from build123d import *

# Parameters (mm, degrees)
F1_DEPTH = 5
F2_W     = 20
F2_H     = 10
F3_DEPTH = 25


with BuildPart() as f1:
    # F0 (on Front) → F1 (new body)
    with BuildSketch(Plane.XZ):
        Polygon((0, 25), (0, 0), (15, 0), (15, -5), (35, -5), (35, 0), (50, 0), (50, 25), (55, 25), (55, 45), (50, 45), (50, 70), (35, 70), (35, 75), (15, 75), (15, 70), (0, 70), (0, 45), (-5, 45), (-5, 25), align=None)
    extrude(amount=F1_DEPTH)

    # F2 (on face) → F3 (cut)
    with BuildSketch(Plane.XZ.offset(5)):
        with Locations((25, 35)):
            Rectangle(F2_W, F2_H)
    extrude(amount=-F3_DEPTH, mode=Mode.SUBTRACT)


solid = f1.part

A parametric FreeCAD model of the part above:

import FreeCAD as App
import Part
import Sketcher

doc = App.newDocument("Part")
body = doc.addObject("PartDesign::Body", "Body")

sketch1 = doc.addObject("Sketcher::SketchObject", "Sketch")
body.addObject(sketch1)
sketch1.AttachmentSupport = (doc.XZ_Plane, [""])
sketch1.MapMode = "FlatFace"
sketch1.addGeometry([
    Part.LineSegment(App.Vector(0, 25, 0), App.Vector(0, 0, 0)),
    Part.LineSegment(App.Vector(0, 0, 0), App.Vector(15, 0, 0)),
    Part.LineSegment(App.Vector(15, 0, 0), App.Vector(15, -5, 0)),
    Part.LineSegment(App.Vector(15, -5, 0), App.Vector(35, -5, 0)),
    Part.LineSegment(App.Vector(35, -5, 0), App.Vector(35, 0, 0)),
    Part.LineSegment(App.Vector(35, 0, 0), App.Vector(50, 0, 0)),
    Part.LineSegment(App.Vector(50, 0, 0), App.Vector(50, 25, 0)),
    Part.LineSegment(App.Vector(50, 25, 0), App.Vector(55, 25, 0)),
    Part.LineSegment(App.Vector(55, 25, 0), App.Vector(55, 45, 0)),
    Part.LineSegment(App.Vector(55, 45, 0), App.Vector(50, 45, 0)),
    Part.LineSegment(App.Vector(50, 45, 0), App.Vector(50, 70, 0)),
    Part.LineSegment(App.Vector(50, 70, 0), App.Vector(35, 70, 0)),
    Part.LineSegment(App.Vector(35, 70, 0), App.Vector(35, 75, 0)),
    Part.LineSegment(App.Vector(35, 75, 0), App.Vector(15, 75, 0)),
    Part.LineSegment(App.Vector(15, 75, 0), App.Vector(15, 70, 0)),
    Part.LineSegment(App.Vector(15, 70, 0), App.Vector(0, 70, 0)),
    Part.LineSegment(App.Vector(0, 70, 0), App.Vector(0, 45, 0)),
    Part.LineSegment(App.Vector(0, 45, 0), App.Vector(-5, 45, 0)),
    Part.LineSegment(App.Vector(-5, 45, 0), App.Vector(-5, 25, 0)),
    Part.LineSegment(App.Vector(-5, 25, 0), App.Vector(0, 25, 0)),
], False)
sketch1.addConstraint([
    Sketcher.Constraint("Coincident", 0, 2, 1, 1),
    Sketcher.Constraint("Coincident", 1, 2, 2, 1),
    Sketcher.Constraint("Coincident", 2, 2, 3, 1),
    Sketcher.Constraint("Coincident", 3, 2, 4, 1),
    Sketcher.Constraint("Coincident", 4, 2, 5, 1),
    Sketcher.Constraint("Coincident", 5, 2, 6, 1),
    Sketcher.Constraint("Coincident", 6, 2, 7, 1),
    Sketcher.Constraint("Coincident", 7, 2, 8, 1),
    Sketcher.Constraint("Coincident", 8, 2, 9, 1),
    Sketcher.Constraint("Coincident", 9, 2, 10, 1),
    Sketcher.Constraint("Coincident", 10, 2, 11, 1),
    Sketcher.Constraint("Coincident", 11, 2, 12, 1),
    Sketcher.Constraint("Coincident", 12, 2, 13, 1),
    Sketcher.Constraint("Coincident", 13, 2, 14, 1),
    Sketcher.Constraint("Coincident", 14, 2, 15, 1),
    Sketcher.Constraint("Coincident", 15, 2, 16, 1),
    Sketcher.Constraint("Coincident", 16, 2, 17, 1),
    Sketcher.Constraint("Coincident", 17, 2, 18, 1),
    Sketcher.Constraint("Coincident", 18, 2, 19, 1),
    Sketcher.Constraint("Coincident", 19, 2, 0, 1),
    Sketcher.Constraint("Vertical", 0),
    Sketcher.Constraint("Horizontal", 1),
    Sketcher.Constraint("Vertical", 2),
    Sketcher.Constraint("Horizontal", 3),
    Sketcher.Constraint("Vertical", 4),
    Sketcher.Constraint("Horizontal", 5),
    Sketcher.Constraint("Vertical", 6),
    Sketcher.Constraint("Horizontal", 7),
    Sketcher.Constraint("Vertical", 8),
    Sketcher.Constraint("Horizontal", 9),
    Sketcher.Constraint("Vertical", 10),
    Sketcher.Constraint("Horizontal", 11),
    Sketcher.Constraint("Vertical", 12),
    Sketcher.Constraint("Horizontal", 13),
    Sketcher.Constraint("Vertical", 14),
    Sketcher.Constraint("Horizontal", 15),
    Sketcher.Constraint("Vertical", 16),
    Sketcher.Constraint("Horizontal", 17),
    Sketcher.Constraint("Vertical", 18),
    Sketcher.Constraint("Horizontal", 19),
    Sketcher.Constraint("Coincident", 0, 2, -1, 1),
    Sketcher.Constraint("PointOnObject", 4, 2, -1),
    Sketcher.Constraint("PointOnObject", 15, 2, -2),
    Sketcher.Constraint("Horizontal", 11, 2, 14, 2),
    Sketcher.Constraint("Horizontal", 9, 2, 16, 2),
    Sketcher.Constraint("Horizontal", 7, 2, 18, 2),
    Sketcher.Constraint("Vertical", 6, 2, 9, 2),
    Sketcher.Constraint("Vertical", 4, 2, 11, 2),
    Sketcher.Constraint("Vertical", 2, 2, 13, 2),
    Sketcher.Constraint("Equal", 1, 5),
    Sketcher.Constraint("Equal", 9, 17),
    Sketcher.Constraint("Equal", 19, 2),
    Sketcher.Constraint("Equal", 13, 8),
    Sketcher.Constraint("Equal", 6, 10),
    Sketcher.Constraint("Equal", 4, 12),
    Sketcher.Constraint("DistanceX", 1, 1, 1, 2, 15.0),
    Sketcher.Constraint("DistanceX", 3, 1, 3, 2, 20.0),
    Sketcher.Constraint("DistanceX", 7, 1, 7, 2, 5.0),
    Sketcher.Constraint("DistanceY", 0, 2, 0, 1, 25.0),
])
pad1 = doc.addObject("PartDesign::Pad", "Pad")
body.addObject(pad1)
pad1.Profile = sketch1
pad1.Length = 5

sketch2 = doc.addObject("Sketcher::SketchObject", "Sketch001")
body.addObject(sketch2)
sketch2.AttachmentSupport = (doc.XZ_Plane, [""])
sketch2.MapMode = "FlatFace"
sketch2.AttachmentOffset = App.Placement(App.Vector(0, 0, 5), App.Rotation())
sketch2.addGeometry([
    Part.LineSegment(App.Vector(15, 40, 0), App.Vector(15, 30, 0)),
    Part.LineSegment(App.Vector(15, 30, 0), App.Vector(35, 30, 0)),
    Part.LineSegment(App.Vector(35, 30, 0), App.Vector(35, 40, 0)),
    Part.LineSegment(App.Vector(35, 40, 0), App.Vector(15, 40, 0)),
], False)
sketch2.addConstraint([
    Sketcher.Constraint("Coincident", 0, 2, 1, 1),
    Sketcher.Constraint("Coincident", 1, 2, 2, 1),
    Sketcher.Constraint("Coincident", 2, 2, 3, 1),
    Sketcher.Constraint("Coincident", 3, 2, 0, 1),
    Sketcher.Constraint("Vertical", 0),
    Sketcher.Constraint("Horizontal", 1),
    Sketcher.Constraint("Vertical", 2),
    Sketcher.Constraint("Horizontal", 3),
    Sketcher.Constraint("DistanceX", 1, 1, 1, 2, 20.0),
    Sketcher.Constraint("DistanceY", 0, 2, 0, 1, 10.0),
    Sketcher.Constraint("DistanceX", -1, 1, 0, 2, 15.0),
    Sketcher.Constraint("DistanceY", -1, 1, 0, 2, 30.0),
])
pocket1 = doc.addObject("PartDesign::Pocket", "Pocket")
body.addObject(pocket1)
pocket1.Profile = sketch2
pocket1.Length = 25

doc.recompute()
